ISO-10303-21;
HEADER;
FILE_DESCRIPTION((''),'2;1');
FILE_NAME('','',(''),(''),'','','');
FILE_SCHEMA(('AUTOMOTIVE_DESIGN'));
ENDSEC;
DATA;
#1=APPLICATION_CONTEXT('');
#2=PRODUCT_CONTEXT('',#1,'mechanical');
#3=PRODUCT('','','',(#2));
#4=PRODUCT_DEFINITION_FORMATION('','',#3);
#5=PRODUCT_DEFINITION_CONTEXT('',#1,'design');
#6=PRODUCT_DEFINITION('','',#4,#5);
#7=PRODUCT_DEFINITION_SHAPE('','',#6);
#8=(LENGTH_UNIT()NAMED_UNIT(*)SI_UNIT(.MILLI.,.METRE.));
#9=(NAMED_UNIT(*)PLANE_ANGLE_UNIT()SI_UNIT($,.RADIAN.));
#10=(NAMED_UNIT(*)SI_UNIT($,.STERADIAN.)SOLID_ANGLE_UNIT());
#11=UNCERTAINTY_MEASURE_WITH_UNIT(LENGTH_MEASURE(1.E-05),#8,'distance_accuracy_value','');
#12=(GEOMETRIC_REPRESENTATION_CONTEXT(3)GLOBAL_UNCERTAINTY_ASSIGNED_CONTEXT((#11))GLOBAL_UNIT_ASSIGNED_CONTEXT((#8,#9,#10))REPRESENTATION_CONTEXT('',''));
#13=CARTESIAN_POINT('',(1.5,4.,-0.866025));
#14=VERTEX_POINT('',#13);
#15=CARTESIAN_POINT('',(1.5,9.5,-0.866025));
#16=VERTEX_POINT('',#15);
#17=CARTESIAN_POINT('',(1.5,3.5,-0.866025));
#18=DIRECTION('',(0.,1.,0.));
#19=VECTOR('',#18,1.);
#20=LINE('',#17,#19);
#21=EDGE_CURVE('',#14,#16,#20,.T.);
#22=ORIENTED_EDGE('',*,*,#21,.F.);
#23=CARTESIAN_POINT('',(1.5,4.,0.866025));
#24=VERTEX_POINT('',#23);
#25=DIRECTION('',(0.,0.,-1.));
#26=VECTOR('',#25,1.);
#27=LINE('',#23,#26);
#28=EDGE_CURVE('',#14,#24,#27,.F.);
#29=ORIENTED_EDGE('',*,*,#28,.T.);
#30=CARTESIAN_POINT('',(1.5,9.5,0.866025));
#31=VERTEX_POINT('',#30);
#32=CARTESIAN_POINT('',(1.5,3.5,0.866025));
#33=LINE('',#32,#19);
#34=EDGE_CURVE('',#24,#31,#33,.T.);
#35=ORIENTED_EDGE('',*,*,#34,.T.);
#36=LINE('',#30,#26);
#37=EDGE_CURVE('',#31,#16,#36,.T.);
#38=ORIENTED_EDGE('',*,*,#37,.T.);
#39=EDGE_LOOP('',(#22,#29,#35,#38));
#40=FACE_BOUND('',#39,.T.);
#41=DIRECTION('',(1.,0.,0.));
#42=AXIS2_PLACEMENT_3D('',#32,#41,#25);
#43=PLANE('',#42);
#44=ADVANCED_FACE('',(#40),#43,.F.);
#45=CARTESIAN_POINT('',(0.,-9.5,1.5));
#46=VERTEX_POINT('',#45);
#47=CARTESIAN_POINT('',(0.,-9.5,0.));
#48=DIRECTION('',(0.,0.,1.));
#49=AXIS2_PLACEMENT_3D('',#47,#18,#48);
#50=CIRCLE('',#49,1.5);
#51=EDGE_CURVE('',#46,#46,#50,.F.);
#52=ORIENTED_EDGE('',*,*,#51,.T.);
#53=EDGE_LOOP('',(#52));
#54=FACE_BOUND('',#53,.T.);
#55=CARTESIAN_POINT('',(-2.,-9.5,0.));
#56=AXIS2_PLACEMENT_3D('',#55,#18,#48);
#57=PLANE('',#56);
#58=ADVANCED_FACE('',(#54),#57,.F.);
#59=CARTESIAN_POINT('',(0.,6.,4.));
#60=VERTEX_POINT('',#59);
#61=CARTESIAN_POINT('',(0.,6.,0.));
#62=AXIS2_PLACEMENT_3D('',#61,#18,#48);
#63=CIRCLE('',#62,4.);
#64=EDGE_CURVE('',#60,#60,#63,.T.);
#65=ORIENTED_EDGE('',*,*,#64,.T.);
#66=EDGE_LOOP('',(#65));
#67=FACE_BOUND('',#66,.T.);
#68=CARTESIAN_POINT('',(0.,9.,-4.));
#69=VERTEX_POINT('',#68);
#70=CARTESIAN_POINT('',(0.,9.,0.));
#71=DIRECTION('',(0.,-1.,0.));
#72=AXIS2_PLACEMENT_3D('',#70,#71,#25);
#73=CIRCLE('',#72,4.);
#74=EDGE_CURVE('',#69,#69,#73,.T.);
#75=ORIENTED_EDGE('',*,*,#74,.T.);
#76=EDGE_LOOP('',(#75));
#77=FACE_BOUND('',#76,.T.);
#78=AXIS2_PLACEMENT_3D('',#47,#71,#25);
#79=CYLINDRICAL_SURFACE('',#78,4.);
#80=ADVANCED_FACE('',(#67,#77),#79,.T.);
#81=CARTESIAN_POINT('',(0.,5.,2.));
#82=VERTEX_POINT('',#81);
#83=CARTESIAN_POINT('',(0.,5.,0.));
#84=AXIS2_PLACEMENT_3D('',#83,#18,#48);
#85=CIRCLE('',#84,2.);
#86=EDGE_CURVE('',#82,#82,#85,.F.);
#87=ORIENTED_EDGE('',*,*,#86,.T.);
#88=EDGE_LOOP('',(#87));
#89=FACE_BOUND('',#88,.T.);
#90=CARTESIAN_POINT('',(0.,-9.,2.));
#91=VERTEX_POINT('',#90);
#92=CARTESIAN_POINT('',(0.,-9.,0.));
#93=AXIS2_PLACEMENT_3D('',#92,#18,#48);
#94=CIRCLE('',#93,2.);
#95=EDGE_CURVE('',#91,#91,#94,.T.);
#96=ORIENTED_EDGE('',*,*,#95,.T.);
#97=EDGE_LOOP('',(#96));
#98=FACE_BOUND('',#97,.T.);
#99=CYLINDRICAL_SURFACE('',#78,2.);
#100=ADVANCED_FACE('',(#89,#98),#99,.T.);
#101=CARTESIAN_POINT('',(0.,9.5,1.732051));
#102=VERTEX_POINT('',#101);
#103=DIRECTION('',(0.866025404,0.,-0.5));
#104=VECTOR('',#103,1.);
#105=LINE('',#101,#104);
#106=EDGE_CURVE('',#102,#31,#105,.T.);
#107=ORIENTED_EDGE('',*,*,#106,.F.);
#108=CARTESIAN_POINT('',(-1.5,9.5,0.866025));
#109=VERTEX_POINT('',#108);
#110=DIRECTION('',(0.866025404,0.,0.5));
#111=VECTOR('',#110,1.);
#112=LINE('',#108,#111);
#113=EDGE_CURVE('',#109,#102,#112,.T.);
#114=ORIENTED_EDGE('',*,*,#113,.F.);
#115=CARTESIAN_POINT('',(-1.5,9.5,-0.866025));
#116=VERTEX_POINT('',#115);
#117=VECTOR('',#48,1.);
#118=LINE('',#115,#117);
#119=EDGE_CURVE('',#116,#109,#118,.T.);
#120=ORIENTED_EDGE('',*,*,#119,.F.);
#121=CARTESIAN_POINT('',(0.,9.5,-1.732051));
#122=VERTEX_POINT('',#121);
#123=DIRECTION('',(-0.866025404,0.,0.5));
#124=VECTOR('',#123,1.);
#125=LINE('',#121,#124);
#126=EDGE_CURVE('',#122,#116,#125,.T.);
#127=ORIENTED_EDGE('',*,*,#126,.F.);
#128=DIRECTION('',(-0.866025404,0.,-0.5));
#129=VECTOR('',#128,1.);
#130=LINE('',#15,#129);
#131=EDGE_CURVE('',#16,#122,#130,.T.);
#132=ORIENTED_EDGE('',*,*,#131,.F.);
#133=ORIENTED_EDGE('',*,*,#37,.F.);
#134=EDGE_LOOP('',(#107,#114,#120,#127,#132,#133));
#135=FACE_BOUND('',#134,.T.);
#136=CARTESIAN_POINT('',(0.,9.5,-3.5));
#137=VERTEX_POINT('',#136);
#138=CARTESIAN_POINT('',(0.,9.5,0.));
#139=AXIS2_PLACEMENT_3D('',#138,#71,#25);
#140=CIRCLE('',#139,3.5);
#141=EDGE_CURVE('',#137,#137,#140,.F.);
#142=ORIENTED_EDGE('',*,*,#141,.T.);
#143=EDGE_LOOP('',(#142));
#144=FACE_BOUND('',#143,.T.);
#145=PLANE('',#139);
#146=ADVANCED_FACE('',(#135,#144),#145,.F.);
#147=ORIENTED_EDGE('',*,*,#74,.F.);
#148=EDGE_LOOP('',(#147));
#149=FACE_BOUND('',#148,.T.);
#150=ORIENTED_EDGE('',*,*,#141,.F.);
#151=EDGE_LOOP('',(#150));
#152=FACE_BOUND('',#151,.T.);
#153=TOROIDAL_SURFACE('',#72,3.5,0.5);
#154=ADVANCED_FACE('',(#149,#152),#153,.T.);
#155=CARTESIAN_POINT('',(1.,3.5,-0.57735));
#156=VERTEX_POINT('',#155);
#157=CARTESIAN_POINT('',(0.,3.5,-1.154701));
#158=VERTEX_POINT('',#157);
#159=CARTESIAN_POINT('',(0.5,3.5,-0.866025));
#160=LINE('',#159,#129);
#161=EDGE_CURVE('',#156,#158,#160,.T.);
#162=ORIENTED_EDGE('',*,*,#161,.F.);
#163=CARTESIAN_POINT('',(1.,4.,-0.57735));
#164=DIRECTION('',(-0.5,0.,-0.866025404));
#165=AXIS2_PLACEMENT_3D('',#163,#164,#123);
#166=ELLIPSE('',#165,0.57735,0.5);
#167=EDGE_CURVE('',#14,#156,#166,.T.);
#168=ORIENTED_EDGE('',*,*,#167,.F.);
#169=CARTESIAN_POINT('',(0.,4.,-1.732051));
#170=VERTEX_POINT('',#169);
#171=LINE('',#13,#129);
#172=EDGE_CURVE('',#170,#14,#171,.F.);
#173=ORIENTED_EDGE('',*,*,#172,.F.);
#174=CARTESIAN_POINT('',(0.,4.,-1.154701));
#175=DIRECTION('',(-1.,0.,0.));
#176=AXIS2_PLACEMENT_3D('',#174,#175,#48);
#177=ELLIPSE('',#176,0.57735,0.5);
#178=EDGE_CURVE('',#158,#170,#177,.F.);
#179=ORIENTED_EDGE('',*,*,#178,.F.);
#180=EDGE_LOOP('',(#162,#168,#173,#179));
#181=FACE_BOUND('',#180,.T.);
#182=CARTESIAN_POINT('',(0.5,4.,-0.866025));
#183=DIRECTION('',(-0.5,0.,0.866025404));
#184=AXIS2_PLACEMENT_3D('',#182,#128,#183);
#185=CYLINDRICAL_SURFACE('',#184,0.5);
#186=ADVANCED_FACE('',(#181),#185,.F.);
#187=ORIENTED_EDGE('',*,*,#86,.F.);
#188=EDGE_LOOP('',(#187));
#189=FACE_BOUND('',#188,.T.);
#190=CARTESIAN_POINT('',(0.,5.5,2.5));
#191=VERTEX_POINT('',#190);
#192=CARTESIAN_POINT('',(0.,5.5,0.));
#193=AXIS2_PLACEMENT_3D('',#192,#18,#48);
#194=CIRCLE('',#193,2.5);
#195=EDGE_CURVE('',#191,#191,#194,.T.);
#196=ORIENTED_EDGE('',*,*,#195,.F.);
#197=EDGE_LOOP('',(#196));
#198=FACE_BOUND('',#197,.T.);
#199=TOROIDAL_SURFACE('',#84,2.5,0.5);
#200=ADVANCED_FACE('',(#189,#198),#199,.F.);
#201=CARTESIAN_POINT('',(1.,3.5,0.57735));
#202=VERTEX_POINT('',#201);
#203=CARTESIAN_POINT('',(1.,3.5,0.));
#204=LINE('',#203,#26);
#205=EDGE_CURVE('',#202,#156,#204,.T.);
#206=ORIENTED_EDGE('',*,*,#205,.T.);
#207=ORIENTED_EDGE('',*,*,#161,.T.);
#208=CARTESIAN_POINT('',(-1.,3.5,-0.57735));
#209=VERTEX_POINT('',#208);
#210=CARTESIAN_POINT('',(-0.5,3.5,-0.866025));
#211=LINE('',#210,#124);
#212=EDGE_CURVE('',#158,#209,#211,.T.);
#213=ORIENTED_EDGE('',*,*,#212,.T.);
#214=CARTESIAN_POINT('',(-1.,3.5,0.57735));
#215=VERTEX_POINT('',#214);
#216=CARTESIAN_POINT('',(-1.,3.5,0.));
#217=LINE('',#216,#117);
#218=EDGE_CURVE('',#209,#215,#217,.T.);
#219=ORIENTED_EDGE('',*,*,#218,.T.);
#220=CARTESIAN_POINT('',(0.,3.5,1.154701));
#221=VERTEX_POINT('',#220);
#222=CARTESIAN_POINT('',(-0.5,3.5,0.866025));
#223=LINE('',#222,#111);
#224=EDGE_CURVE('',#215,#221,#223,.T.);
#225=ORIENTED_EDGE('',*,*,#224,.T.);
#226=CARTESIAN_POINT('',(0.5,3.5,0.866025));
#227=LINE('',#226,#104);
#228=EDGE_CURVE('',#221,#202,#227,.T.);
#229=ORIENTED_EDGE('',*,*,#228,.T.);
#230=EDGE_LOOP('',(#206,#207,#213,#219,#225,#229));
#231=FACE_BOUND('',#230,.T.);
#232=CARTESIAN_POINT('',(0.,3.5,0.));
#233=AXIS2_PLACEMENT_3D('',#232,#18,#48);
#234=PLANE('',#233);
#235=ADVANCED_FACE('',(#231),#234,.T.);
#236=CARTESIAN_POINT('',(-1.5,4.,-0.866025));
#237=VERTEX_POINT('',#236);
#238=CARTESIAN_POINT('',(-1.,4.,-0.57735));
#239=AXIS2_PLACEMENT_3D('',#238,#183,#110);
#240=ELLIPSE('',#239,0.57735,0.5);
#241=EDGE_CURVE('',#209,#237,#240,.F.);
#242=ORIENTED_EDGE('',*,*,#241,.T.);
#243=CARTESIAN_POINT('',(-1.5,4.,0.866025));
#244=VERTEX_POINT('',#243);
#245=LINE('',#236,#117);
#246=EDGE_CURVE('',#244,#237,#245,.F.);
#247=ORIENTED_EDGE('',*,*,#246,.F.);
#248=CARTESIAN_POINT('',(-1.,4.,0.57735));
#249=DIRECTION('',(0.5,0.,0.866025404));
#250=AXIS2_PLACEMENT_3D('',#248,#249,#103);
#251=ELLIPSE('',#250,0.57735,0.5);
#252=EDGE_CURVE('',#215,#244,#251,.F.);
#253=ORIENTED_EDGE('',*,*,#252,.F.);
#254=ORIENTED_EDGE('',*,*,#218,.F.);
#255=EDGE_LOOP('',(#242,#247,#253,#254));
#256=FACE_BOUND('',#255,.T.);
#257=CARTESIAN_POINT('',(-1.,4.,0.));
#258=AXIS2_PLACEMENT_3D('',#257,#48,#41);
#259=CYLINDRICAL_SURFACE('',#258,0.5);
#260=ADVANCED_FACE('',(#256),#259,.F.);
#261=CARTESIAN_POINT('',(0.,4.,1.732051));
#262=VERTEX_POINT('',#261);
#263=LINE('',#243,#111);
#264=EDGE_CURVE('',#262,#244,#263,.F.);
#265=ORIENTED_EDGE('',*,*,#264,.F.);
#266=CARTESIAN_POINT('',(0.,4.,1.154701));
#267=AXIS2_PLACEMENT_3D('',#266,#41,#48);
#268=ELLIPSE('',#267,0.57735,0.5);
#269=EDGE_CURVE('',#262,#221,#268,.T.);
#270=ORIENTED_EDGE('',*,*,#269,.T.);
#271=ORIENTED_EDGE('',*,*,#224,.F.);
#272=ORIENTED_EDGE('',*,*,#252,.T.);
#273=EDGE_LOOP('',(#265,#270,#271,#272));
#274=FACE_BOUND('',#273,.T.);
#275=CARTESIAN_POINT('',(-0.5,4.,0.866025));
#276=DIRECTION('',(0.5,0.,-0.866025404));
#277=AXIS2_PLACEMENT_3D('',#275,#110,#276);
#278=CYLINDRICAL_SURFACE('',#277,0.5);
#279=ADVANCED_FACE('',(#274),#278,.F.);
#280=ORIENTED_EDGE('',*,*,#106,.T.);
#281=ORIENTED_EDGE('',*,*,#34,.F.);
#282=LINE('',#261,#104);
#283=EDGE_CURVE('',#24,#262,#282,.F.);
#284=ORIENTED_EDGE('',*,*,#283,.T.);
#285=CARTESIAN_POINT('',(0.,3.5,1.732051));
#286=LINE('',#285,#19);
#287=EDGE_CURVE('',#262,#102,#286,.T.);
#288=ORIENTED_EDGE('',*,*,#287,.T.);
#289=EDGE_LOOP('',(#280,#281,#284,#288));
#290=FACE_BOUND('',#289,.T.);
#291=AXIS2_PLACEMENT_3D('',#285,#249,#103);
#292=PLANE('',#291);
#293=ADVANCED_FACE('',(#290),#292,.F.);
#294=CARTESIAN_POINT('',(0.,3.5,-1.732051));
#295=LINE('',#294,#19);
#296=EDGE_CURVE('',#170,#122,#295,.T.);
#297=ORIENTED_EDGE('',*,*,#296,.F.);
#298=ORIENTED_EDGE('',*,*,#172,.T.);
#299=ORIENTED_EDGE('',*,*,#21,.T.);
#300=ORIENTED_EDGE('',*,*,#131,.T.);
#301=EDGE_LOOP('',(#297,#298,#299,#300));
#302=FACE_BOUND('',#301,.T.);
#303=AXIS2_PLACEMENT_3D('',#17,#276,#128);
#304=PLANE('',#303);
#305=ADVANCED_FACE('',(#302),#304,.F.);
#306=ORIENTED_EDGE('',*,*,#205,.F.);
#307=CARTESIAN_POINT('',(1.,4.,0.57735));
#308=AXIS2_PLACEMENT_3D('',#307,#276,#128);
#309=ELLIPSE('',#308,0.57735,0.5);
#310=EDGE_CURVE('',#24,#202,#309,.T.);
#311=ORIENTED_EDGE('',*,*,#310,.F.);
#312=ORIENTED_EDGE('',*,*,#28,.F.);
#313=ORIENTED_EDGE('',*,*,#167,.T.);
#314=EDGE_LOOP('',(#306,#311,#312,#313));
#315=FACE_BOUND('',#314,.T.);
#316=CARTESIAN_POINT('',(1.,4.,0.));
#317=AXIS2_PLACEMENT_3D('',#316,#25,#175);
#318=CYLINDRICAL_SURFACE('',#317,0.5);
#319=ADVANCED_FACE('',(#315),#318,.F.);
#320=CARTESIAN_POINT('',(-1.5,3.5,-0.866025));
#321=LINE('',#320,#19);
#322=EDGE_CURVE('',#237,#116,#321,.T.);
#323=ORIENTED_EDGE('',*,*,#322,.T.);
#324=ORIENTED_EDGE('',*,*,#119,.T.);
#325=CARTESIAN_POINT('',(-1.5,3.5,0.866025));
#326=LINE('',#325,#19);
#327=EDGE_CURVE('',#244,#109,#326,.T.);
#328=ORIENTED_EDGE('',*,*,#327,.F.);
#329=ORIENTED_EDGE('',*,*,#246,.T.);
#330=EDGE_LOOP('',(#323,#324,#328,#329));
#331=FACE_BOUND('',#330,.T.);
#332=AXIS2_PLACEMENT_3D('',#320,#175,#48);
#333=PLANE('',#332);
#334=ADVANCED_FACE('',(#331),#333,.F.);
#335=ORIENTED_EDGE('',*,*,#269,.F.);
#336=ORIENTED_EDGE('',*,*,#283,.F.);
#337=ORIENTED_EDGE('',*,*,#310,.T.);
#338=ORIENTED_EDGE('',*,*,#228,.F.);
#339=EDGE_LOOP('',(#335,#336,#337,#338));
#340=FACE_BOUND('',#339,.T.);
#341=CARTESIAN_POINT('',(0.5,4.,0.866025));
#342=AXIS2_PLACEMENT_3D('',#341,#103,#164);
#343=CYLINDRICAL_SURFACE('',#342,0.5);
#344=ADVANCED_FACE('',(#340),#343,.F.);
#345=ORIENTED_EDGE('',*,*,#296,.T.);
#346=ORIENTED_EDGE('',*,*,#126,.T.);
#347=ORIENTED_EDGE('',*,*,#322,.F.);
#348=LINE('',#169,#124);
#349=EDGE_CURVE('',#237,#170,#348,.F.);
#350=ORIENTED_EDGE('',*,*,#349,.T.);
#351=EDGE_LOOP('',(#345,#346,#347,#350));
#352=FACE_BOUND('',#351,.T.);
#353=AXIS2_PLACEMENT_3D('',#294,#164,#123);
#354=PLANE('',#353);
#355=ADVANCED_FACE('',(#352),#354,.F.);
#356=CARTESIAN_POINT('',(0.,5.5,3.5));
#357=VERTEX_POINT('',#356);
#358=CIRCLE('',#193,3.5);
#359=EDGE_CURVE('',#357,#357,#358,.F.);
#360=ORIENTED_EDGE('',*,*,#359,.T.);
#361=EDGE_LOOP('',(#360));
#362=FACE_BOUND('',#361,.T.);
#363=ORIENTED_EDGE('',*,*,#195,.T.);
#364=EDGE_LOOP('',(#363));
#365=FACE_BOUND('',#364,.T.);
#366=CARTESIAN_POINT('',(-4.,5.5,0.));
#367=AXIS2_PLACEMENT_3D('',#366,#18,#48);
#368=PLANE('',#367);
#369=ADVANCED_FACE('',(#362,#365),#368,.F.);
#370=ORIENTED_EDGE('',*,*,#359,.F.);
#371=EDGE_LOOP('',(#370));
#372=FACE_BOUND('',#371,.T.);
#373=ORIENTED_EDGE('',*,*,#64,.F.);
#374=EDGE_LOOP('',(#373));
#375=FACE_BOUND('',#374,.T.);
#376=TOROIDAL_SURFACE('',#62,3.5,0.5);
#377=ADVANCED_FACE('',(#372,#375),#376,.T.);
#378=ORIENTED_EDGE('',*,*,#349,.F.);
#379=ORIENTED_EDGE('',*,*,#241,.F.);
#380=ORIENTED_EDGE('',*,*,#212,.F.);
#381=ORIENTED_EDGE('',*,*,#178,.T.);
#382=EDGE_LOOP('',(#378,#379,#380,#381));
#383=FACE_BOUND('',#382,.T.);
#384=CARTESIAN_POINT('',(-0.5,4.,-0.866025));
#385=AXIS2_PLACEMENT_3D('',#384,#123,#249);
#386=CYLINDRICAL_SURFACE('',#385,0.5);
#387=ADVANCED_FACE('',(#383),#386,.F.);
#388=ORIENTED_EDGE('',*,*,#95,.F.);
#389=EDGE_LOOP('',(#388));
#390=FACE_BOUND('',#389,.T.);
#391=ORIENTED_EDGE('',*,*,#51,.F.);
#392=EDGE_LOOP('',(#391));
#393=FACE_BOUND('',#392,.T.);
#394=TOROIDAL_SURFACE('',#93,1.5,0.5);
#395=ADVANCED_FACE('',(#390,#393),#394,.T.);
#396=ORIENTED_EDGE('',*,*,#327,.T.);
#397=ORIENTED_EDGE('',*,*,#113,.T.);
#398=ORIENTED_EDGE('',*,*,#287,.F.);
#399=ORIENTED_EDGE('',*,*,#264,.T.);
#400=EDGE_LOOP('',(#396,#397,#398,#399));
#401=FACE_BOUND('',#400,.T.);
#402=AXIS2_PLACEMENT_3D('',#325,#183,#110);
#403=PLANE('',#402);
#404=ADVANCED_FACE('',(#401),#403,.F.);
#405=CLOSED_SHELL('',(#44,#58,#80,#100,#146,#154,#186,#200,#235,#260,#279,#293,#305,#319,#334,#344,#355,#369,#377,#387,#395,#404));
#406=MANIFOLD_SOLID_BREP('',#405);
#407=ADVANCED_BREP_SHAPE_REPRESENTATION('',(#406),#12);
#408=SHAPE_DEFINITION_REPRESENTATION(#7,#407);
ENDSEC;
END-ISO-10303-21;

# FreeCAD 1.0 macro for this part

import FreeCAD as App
import Part
import Sketcher
from FreeCAD import Vector
Q = App.Units.Quantity


def edges_at(feature, points):
    """Names of the edges that pass closest to the given points."""
    edges = feature.Shape.Edges
    near = lambda p: min(range(len(edges)), key=lambda i: edges[i].distToShape(Part.Vertex(*p))[0])
    return sorted({f"Edge{near(p) + 1}" for p in points})

doc = App.newDocument("Part")
body = doc.addObject("PartDesign::Body", "Body")

# Sketch on XY plane
sketch1 = body.newObject("Sketcher::SketchObject", "Sketch")
sketch1.AttachmentSupport = (doc.getObject("XY_Plane"), [""])
sketch1.MapMode = "FlatFace"
sketch1.addGeometry([
    Part.LineSegment(Vector(0, -9.5, 0), Vector(0, 9.5, 0)),  # 0
    Part.LineSegment(Vector(0, 9.5, 0), Vector(-4, 9.5, 0)),  # 1
    Part.LineSegment(Vector(-4, 9.5, 0), Vector(-4, 5.5, 0)),  # 2
    Part.LineSegment(Vector(-4, 5.5, 0), Vector(-2, 5.5, 0)),  # 3
    Part.LineSegment(Vector(-2, 5.5, 0), Vector(-2, -9.5, 0)),  # 4
    Part.LineSegment(Vector(-2, -9.5, 0), Vector(0, -9.5, 0)),  # 5
], False)
sketch1.addConstraint([
    Sketcher.Constraint("Coincident", 0, 2, 1, 1),
    Sketcher.Constraint("Coincident", 1, 2, 2, 1),
    Sketcher.Constraint("Coincident", 2, 2, 3, 1),
    Sketcher.Constraint("Coincident", 3, 2, 4, 1),
    Sketcher.Constraint("Coincident", 4, 2, 5, 1),
    Sketcher.Constraint("Coincident", 5, 2, 0, 1),
    Sketcher.Constraint("Vertical", 0),
    Sketcher.Constraint("Horizontal", 1),
    Sketcher.Constraint("Vertical", 2),
    Sketcher.Constraint("Horizontal", 3),
    Sketcher.Constraint("Vertical", 4),
    Sketcher.Constraint("Horizontal", 5),
    Sketcher.Constraint("Symmetric", 0, 2, 5, 2, -1, 1),
    Sketcher.Constraint("Equal", 3, 5),
    Sketcher.Constraint("Equal", 1, 2),
    Sketcher.Constraint("DistanceX", 1, 2, 1, 1, Q("4 mm")),
    Sketcher.Constraint("DistanceY", 0, 1, 0, 2, Q("19 mm")),
])
revolution = body.newObject("PartDesign::Revolution", "Revolution")
revolution.Profile = sketch1
revolution.ReferenceAxis = (sketch1, ["V_Axis"])
revolution.Angle = 360

# Sketch on XZ plane
sketch2 = body.newObject("Sketcher::SketchObject", "Sketch001")
sketch2.AttachmentSupport = (doc.getObject("XZ_Plane"), [""])
sketch2.MapMode = "FlatFace"
sketch2.AttachmentOffset = App.Placement(Vector(0, 0, -9.5), App.Rotation())
sketch2.addGeometry([
    Part.LineSegment(Vector(1.5, 0.9, 0), Vector(1.5, -0.9, 0)),  # 0
    Part.LineSegment(Vector(1.5, -0.9, 0), Vector(0, -1.7, 0)),  # 1
    Part.LineSegment(Vector(0, -1.7, 0), Vector(-1.5, -0.9, 0)),  # 2
    Part.LineSegment(Vector(-1.5, -0.9, 0), Vector(-1.5, 0.9, 0)),  # 3
    Part.LineSegment(Vector(-1.5, 0.9, 0), Vector(0, 1.7, 0)),  # 4
    Part.LineSegment(Vector(0, 1.7, 0), Vector(1.5, 0.9, 0)),  # 5
], False)
sketch2.addConstraint([
    Sketcher.Constraint("Coincident", 0, 2, 1, 1),
    Sketcher.Constraint("Coincident", 1, 2, 2, 1),
    Sketcher.Constraint("Coincident", 2, 2, 3, 1),
    Sketcher.Constraint("Coincident", 3, 2, 4, 1),
    Sketcher.Constraint("Coincident", 4, 2, 5, 1),
    Sketcher.Constraint("Coincident", 5, 2, 0, 1),
    Sketcher.Constraint("Vertical", 0),
    Sketcher.Constraint("Vertical", 3),
    Sketcher.Constraint("Symmetric", 0, 2, 3, 2, -1, 1),
    Sketcher.Constraint("Symmetric", 1, 2, 4, 2, -1, 1),
    Sketcher.Constraint("PointOnObject", 1, 2, -2),
    Sketcher.Constraint("Parallel", 2, 5),
    Sketcher.Constraint("Horizontal", 0, 2, 2, 2),
    Sketcher.Constraint("Angle", 1, Q("-150 deg")),
    Sketcher.Constraint("DistanceX", 2, 2, 0, 2, Q("3 mm")),
    Sketcher.Constraint("DistanceY", 0, 2, 0, 1, Q("1.732051 mm")),
])
pocket1 = body.newObject("PartDesign::Pocket", "Pocket")
pocket1.Profile = sketch2
pocket1.Length = 6
pocket1.Reversed = True
doc.recompute()

fillet = body.newObject("PartDesign::Fillet", "Fillet")
fillet.Base = (pocket1, edges_at(pocket1, [
    (0.75, 3.5, 1.299),
    (-0.75, 3.5, 1.299),
    (-1.5, 3.5, 0),
    (-0.75, 3.5, -1.299),
    (0.75, 3.5, -1.299),
    (1.5, 3.5, 0),
    (2, -9.5, 0),
    (2, 5.5, 0),
    (4, 5.5, 0),
    (4, 9.5, 0),
]))
fillet.Radius = 0.5

doc.recompute()
